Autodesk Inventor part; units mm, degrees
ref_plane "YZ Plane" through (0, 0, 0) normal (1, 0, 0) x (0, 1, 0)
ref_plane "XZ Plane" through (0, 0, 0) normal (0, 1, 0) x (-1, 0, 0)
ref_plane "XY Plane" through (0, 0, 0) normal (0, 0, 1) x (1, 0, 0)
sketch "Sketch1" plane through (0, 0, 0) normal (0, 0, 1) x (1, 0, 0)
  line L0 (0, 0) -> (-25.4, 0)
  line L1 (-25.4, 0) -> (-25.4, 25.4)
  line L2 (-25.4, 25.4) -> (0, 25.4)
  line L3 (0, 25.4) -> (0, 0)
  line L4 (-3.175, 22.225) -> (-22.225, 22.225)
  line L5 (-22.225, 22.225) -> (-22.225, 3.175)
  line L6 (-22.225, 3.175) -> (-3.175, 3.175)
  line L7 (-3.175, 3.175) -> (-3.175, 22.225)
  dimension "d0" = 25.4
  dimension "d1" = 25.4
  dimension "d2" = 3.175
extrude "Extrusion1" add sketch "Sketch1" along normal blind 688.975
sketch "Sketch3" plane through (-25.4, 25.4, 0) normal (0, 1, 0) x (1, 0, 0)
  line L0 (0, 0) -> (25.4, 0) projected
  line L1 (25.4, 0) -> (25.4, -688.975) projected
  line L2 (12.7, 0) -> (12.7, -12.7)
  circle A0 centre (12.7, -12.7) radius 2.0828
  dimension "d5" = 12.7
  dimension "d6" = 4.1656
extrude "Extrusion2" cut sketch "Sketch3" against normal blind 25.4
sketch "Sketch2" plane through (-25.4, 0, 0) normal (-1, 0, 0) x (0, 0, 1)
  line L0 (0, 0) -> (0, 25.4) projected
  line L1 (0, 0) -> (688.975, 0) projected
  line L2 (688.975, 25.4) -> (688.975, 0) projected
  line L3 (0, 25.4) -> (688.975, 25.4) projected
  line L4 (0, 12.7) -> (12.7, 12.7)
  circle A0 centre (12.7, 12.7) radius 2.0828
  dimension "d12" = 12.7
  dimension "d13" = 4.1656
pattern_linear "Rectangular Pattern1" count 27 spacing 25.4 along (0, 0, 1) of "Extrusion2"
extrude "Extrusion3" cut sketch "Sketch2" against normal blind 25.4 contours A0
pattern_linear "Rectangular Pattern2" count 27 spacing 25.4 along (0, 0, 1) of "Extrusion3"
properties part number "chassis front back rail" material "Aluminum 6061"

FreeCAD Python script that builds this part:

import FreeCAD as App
import Part
import Sketcher
from FreeCAD import Vector
Q = App.Units.Quantity

doc = App.newDocument("Part")
params = doc.addObject("Spreadsheet::Sheet", "Params")
for row, (alias, value) in enumerate([
    ("sketch1_width", "1 in"),
    ("pad1_length", "27.125 in"),
    ("sketch2_diameter", "0.164 in"),
    ("pocket1_length", "1 in"),
    ("linearpattern_pitch", "1 in"),
    ("sketch3_diameter", "0.164 in"),
    ("pocket2_length", "1 in"),
    ("linearpattern2_pitch", "1 in"),
], start=1):
    params.set(f"A{row}", alias)
    params.set(f"B{row}", "=" + value)
    params.setAlias(f"B{row}", alias)

body = doc.addObject("PartDesign::Body", "Body")

# Sketch on XY plane
sketch1 = body.newObject("Sketcher::SketchObject", "Sketch")
sketch1.AttachmentSupport = (doc.getObject("XY_Plane"), [""])
sketch1.MapMode = "FlatFace"
sketch1.addGeometry(Part.LineSegment(Vector(-25, 0, 0), Vector(0, 0, 0)), False)
sketch1.addGeometry(Part.LineSegment(Vector(0, 0, 0), Vector(0, 25, 0)), False)
sketch1.addGeometry(Part.LineSegment(Vector(0, 25, 0), Vector(-25, 25, 0)), False)
sketch1.addGeometry(Part.LineSegment(Vector(-25, 25, 0), Vector(-25, 0, 0)), False)
sketch1.addGeometry(Part.LineSegment(Vector(-22, 22, 0), Vector(-3, 22, 0)), False)
sketch1.addGeometry(Part.LineSegment(Vector(-3, 22, 0), Vector(-3, 3, 0)), False)
sketch1.addGeometry(Part.LineSegment(Vector(-3, 3, 0), Vector(-22, 3, 0)), False)
sketch1.addGeometry(Part.LineSegment(Vector(-22, 3, 0), Vector(-22, 22, 0)), False)
sketch1.addConstraint(Sketcher.Constraint("Coincident", 0, 2, 1, 1))
sketch1.addConstraint(Sketcher.Constraint("Coincident", 1, 2, 2, 1))
sketch1.addConstraint(Sketcher.Constraint("Coincident", 2, 2, 3, 1))
sketch1.addConstraint(Sketcher.Constraint("Coincident", 3, 2, 0, 1))
sketch1.addConstraint(Sketcher.Constraint("Coincident", 4, 2, 5, 1))
sketch1.addConstraint(Sketcher.Constraint("Coincident", 5, 2, 6, 1))
sketch1.addConstraint(Sketcher.Constraint("Coincident", 6, 2, 7, 1))
sketch1.addConstraint(Sketcher.Constraint("Coincident", 7, 2, 4, 1))
sketch1.addConstraint(Sketcher.Constraint("Horizontal", 0))
sketch1.addConstraint(Sketcher.Constraint("Vertical", 1))
sketch1.addConstraint(Sketcher.Constraint("Horizontal", 2))
sketch1.addConstraint(Sketcher.Constraint("Vertical", 3))
sketch1.addConstraint(Sketcher.Constraint("Horizontal", 4))
sketch1.addConstraint(Sketcher.Constraint("Vertical", 5))
sketch1.addConstraint(Sketcher.Constraint("Horizontal", 6))
sketch1.addConstraint(Sketcher.Constraint("Vertical", 7))
sketch1.addConstraint(Sketcher.Constraint("Coincident", 0, 2, -1, 1))
sketch1.addConstraint(Sketcher.Constraint("Equal", 2, 1))
sketch1.addConstraint(Sketcher.Constraint("Equal", 6, 5))
sketch1.addConstraint(Sketcher.Constraint("DistanceX", 0, 1, 0, 2, Q("1 in")))
sketch1.addConstraint(Sketcher.Constraint("DistanceX", 4, 2, -1, 1, Q("0.125 in")))
sketch1.addConstraint(Sketcher.Constraint("DistanceY", -1, 1, 5, 2, Q("0.125 in")))
sketch1.addConstraint(Sketcher.Constraint("DistanceY", 4, 2, 1, 2, Q("0.125 in")))
sketch1.setExpression("Constraints[19]", "Params.sketch1_width")
pad1 = body.newObject("PartDesign::Pad", "Pad")
pad1.Profile = sketch1
pad1.setExpression("Length", "Params.pad1_length")

# Sketch on XZ plane
sketch2 = body.newObject("Sketcher::SketchObject", "Sketch001")
sketch2.AttachmentSupport = (doc.getObject("XZ_Plane"), [""])
sketch2.MapMode = "FlatFace"
sketch2.AttachmentOffset = App.Placement(Vector(0, 0, -1 * 25.4), App.Rotation())
sketch2.addGeometry(Part.Circle(Vector(-12.7, 12.7, 0), Vector(0, 0, 1), 2.1), False)
sketch2.addConstraint(Sketcher.Constraint("Diameter", 0, Q("0.164 in")))
sketch2.addConstraint(Sketcher.Constraint("DistanceX", 0, 3, -1, 1, Q("0.5 in")))
sketch2.addConstraint(Sketcher.Constraint("DistanceY", -1, 1, 0, 3, Q("0.5 in")))
sketch2.setExpression("Constraints[0]", "Params.sketch2_diameter")
pocket1 = body.newObject("PartDesign::Pocket", "Pocket")
pocket1.Profile = sketch2
pocket1.setExpression("Length", "Params.pocket1_length")
pocket1.Reversed = True
doc.recompute()

linearpattern = body.newObject("PartDesign::LinearPattern", "LinearPattern")
linearpattern.Originals = [pocket1]
linearpattern.Direction = (doc.getObject("Z_Axis"), [""])
linearpattern.Mode = "offset"
linearpattern.setExpression("Offset", "Params.linearpattern_pitch")
linearpattern.Occurrences = 27
body.Tip = linearpattern

# Sketch on YZ plane
sketch3 = body.newObject("Sketcher::SketchObject", "Sketch002")
sketch3.AttachmentSupport = (doc.getObject("YZ_Plane"), [""])
sketch3.MapMode = "FlatFace"
sketch3.AttachmentOffset = App.Placement(Vector(0, 0, -1 * 25.4), App.Rotation())
sketch3.addGeometry(Part.Circle(Vector(12.7, 12.7, 0), Vector(0, 0, 1), 2.1), False)
sketch3.addConstraint(Sketcher.Constraint("Diameter", 0, Q("0.164 in")))
sketch3.addConstraint(Sketcher.Constraint("DistanceX", -1, 1, 0, 3, Q("0.5 in")))
sketch3.addConstraint(Sketcher.Constraint("DistanceY", -1, 1, 0, 3, Q("0.5 in")))
sketch3.setExpression("Constraints[0]", "Params.sketch3_diameter")
pocket2 = body.newObject("PartDesign::Pocket", "Pocket001")
pocket2.Profile = sketch3
pocket2.setExpression("Length", "Params.pocket2_length")
pocket2.Reversed = True
doc.recompute()

linearpattern2 = body.newObject("PartDesign::LinearPattern", "LinearPattern001")
linearpattern2.Originals = [pocket2]
linearpattern2.Direction = (doc.getObject("Z_Axis"), [""])
linearpattern2.Mode = "offset"
linearpattern2.setExpression("Offset", "Params.linearpattern2_pitch")
linearpattern2.Occurrences = 27
body.Tip = linearpattern2

doc.recompute()
